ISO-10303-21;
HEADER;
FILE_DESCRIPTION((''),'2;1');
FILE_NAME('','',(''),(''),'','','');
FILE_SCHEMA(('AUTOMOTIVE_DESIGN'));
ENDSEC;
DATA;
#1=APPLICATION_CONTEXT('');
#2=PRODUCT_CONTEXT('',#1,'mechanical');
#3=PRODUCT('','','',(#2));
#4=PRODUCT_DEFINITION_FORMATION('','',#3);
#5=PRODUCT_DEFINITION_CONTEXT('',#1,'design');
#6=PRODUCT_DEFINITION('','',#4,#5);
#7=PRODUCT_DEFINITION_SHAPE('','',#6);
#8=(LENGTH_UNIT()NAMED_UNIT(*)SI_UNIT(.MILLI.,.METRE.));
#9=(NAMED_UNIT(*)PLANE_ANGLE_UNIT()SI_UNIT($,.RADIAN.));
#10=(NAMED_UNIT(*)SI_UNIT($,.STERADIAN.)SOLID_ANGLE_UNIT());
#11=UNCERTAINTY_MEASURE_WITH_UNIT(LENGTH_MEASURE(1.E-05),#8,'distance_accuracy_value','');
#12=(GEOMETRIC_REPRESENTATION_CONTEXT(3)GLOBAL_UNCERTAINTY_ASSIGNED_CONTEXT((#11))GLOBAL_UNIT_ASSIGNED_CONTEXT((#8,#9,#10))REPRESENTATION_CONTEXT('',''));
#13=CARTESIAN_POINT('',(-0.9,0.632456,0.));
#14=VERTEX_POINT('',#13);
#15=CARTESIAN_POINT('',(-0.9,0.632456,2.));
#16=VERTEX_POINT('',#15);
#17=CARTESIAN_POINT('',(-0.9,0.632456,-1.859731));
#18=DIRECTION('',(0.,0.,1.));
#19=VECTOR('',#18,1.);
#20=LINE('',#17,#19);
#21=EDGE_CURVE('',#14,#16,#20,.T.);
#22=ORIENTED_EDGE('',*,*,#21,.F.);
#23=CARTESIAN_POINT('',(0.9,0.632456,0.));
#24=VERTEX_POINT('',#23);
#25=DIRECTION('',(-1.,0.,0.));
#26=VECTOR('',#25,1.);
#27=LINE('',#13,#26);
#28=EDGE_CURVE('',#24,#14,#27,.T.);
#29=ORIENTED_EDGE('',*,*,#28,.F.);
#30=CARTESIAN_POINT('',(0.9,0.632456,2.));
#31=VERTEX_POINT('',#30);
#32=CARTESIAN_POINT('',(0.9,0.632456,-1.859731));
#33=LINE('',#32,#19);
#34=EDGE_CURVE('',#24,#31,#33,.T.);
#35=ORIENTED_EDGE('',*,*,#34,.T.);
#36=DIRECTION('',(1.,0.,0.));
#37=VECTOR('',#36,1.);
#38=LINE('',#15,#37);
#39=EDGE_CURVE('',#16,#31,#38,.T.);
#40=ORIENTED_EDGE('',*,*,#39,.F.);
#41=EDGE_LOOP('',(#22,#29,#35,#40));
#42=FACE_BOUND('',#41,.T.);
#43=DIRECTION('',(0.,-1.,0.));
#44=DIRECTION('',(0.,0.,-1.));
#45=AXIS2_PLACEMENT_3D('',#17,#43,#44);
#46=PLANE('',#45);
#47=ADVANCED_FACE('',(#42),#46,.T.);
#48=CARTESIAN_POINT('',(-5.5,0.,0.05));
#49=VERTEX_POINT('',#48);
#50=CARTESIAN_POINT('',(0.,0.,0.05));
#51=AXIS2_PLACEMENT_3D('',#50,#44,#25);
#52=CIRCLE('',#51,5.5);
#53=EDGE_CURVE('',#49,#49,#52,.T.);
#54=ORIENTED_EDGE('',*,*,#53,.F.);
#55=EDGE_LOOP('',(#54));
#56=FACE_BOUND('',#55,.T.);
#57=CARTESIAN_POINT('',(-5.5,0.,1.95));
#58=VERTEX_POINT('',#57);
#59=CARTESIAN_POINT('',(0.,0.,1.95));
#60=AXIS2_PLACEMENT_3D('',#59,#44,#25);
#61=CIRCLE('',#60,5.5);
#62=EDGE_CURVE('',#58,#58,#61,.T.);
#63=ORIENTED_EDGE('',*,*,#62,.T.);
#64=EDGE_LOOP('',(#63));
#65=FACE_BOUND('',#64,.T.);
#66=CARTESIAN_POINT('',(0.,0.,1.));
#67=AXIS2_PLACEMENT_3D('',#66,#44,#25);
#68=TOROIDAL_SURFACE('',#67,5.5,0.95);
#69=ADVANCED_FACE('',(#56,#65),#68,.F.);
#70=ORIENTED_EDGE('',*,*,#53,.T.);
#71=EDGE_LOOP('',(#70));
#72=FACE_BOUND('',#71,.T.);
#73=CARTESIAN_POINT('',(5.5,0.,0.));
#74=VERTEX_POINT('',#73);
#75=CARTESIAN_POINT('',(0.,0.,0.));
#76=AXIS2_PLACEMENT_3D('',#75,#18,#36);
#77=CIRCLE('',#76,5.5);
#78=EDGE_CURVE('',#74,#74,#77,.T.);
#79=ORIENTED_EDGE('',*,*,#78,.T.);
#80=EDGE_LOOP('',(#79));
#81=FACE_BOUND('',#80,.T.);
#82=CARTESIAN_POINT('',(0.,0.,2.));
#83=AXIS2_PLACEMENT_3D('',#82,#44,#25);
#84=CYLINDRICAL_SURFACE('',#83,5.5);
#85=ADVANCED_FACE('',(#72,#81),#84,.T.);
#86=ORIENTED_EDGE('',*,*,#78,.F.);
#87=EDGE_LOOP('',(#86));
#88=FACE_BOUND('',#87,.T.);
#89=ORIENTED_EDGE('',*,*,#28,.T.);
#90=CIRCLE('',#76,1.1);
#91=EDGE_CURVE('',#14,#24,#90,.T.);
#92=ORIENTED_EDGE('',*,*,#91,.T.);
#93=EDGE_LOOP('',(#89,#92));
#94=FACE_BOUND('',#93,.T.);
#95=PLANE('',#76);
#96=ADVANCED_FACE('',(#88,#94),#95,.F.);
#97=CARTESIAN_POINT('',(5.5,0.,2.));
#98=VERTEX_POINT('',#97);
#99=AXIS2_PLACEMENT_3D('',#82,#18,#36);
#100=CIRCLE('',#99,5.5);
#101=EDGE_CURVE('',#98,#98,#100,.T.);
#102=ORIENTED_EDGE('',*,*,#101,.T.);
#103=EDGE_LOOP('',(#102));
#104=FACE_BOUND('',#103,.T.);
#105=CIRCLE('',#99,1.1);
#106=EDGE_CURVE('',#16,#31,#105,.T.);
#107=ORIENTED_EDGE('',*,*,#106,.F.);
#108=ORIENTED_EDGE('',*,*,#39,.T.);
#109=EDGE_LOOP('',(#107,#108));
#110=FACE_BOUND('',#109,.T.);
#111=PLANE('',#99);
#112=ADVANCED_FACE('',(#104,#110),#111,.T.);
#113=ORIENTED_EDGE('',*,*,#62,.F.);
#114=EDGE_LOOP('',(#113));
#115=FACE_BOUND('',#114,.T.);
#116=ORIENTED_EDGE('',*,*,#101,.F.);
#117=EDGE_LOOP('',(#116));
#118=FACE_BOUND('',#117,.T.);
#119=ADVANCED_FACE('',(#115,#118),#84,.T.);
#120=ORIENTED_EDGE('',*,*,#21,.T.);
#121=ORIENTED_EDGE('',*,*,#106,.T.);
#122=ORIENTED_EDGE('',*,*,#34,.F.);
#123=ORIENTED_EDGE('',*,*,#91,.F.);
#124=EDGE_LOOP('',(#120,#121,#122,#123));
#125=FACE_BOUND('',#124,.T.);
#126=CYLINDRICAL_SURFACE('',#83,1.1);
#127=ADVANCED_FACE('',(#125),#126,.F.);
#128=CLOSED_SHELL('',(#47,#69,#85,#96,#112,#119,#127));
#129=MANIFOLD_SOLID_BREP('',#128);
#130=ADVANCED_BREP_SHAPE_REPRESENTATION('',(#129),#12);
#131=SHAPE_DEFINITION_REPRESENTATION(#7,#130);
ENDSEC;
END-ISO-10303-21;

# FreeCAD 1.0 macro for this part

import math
import FreeCAD as App
import Part
import Sketcher

doc = App.newDocument("Part")
body = doc.addObject("PartDesign::Body", "Body")

# Sketch on XY plane
sketch1 = doc.addObject("Sketcher::SketchObject", "Sketch")
body.addObject(sketch1)
sketch1.AttachmentSupport = (doc.XY_Plane, [""])
sketch1.MapMode = "FlatFace"
sketch1.addGeometry([
    Part.Circle(App.Vector(0, 0, 0), App.Vector(0, 0, 1), 5.5),
    Part.Circle(App.Vector(0, 0, 0), App.Vector(0, 0, 1), 1.1),
], False)
sketch1.addConstraint([
    Sketcher.Constraint("Coincident", 0, 3, -1, 1),
    Sketcher.Constraint("Coincident", 1, 3, -1, 1),
    Sketcher.Constraint("Diameter", 0, 11.0),
    Sketcher.Constraint("Diameter", 1, 2.2),
])
pad1 = doc.addObject("PartDesign::Pad", "Pad")
body.addObject(pad1)
pad1.Profile = sketch1
pad1.Length = 2

# Sketch on XY plane
sketch2 = doc.addObject("Sketcher::SketchObject", "Sketch001")
body.addObject(sketch2)
sketch2.AttachmentSupport = (doc.XY_Plane, [""])
sketch2.MapMode = "FlatFace"
sketch2.addGeometry([
    Part.LineSegment(App.Vector(-0.9, 0.632456, 0), App.Vector(0.9, 0.632456, 0)),
    Part.ArcOfCircle(Part.Circle(App.Vector(0, 0, 0), App.Vector(0, 0, 1), 1.1), math.radians(35.096801), math.radians(144.903199)),
], False)
sketch2.addConstraint([
    Sketcher.Constraint("Coincident", 0, 1, 1, 2),
    Sketcher.Constraint("Coincident", 1, 1, 0, 2),
    Sketcher.Constraint("Horizontal", 0),
    Sketcher.Constraint("Coincident", 1, 3, -1, 1),
    Sketcher.Constraint("Radius", 1, 1.1),
    Sketcher.Constraint("DistanceX", 0, 1, 0, 2, 1.8),
])
pad2 = doc.addObject("PartDesign::Pad", "Pad001")
body.addObject(pad2)
pad2.Profile = sketch2
pad2.Length = 2

# Sketch on YZ plane
sketch3 = doc.addObject("Sketcher::SketchObject", "Sketch002")
body.addObject(sketch3)
sketch3.AttachmentSupport = (doc.YZ_Plane, [""])
sketch3.MapMode = "FlatFace"
sketch3.addGeometry([
    Part.LineSegment(App.Vector(5.5, 0.05, 0), App.Vector(5.5, 1.95, 0)),
    Part.ArcOfCircle(Part.Circle(App.Vector(5.5, 1, 0), App.Vector(0, 0, 1), 0.95), math.radians(90), math.radians(270)),
], False)
sketch3.addConstraint([
    Sketcher.Constraint("Coincident", 0, 1, 1, 2),
    Sketcher.Constraint("Coincident", 1, 1, 0, 2),
    Sketcher.Constraint("Vertical", 0),
    Sketcher.Constraint("Vertical", 1, 3, 0, 1),
    Sketcher.Constraint("Radius", 1, 0.95),
    Sketcher.Constraint("DistanceY", -1, 1, 1, 3, 1.0),
    Sketcher.Constraint("DistanceX", -1, 1, 1, 3, 5.5),
])
groove = doc.addObject("PartDesign::Groove", "Groove")
body.addObject(groove)
groove.Profile = sketch3
groove.ReferenceAxis = (sketch3, ["V_Axis"])
groove.Angle = 360

doc.recompute()
